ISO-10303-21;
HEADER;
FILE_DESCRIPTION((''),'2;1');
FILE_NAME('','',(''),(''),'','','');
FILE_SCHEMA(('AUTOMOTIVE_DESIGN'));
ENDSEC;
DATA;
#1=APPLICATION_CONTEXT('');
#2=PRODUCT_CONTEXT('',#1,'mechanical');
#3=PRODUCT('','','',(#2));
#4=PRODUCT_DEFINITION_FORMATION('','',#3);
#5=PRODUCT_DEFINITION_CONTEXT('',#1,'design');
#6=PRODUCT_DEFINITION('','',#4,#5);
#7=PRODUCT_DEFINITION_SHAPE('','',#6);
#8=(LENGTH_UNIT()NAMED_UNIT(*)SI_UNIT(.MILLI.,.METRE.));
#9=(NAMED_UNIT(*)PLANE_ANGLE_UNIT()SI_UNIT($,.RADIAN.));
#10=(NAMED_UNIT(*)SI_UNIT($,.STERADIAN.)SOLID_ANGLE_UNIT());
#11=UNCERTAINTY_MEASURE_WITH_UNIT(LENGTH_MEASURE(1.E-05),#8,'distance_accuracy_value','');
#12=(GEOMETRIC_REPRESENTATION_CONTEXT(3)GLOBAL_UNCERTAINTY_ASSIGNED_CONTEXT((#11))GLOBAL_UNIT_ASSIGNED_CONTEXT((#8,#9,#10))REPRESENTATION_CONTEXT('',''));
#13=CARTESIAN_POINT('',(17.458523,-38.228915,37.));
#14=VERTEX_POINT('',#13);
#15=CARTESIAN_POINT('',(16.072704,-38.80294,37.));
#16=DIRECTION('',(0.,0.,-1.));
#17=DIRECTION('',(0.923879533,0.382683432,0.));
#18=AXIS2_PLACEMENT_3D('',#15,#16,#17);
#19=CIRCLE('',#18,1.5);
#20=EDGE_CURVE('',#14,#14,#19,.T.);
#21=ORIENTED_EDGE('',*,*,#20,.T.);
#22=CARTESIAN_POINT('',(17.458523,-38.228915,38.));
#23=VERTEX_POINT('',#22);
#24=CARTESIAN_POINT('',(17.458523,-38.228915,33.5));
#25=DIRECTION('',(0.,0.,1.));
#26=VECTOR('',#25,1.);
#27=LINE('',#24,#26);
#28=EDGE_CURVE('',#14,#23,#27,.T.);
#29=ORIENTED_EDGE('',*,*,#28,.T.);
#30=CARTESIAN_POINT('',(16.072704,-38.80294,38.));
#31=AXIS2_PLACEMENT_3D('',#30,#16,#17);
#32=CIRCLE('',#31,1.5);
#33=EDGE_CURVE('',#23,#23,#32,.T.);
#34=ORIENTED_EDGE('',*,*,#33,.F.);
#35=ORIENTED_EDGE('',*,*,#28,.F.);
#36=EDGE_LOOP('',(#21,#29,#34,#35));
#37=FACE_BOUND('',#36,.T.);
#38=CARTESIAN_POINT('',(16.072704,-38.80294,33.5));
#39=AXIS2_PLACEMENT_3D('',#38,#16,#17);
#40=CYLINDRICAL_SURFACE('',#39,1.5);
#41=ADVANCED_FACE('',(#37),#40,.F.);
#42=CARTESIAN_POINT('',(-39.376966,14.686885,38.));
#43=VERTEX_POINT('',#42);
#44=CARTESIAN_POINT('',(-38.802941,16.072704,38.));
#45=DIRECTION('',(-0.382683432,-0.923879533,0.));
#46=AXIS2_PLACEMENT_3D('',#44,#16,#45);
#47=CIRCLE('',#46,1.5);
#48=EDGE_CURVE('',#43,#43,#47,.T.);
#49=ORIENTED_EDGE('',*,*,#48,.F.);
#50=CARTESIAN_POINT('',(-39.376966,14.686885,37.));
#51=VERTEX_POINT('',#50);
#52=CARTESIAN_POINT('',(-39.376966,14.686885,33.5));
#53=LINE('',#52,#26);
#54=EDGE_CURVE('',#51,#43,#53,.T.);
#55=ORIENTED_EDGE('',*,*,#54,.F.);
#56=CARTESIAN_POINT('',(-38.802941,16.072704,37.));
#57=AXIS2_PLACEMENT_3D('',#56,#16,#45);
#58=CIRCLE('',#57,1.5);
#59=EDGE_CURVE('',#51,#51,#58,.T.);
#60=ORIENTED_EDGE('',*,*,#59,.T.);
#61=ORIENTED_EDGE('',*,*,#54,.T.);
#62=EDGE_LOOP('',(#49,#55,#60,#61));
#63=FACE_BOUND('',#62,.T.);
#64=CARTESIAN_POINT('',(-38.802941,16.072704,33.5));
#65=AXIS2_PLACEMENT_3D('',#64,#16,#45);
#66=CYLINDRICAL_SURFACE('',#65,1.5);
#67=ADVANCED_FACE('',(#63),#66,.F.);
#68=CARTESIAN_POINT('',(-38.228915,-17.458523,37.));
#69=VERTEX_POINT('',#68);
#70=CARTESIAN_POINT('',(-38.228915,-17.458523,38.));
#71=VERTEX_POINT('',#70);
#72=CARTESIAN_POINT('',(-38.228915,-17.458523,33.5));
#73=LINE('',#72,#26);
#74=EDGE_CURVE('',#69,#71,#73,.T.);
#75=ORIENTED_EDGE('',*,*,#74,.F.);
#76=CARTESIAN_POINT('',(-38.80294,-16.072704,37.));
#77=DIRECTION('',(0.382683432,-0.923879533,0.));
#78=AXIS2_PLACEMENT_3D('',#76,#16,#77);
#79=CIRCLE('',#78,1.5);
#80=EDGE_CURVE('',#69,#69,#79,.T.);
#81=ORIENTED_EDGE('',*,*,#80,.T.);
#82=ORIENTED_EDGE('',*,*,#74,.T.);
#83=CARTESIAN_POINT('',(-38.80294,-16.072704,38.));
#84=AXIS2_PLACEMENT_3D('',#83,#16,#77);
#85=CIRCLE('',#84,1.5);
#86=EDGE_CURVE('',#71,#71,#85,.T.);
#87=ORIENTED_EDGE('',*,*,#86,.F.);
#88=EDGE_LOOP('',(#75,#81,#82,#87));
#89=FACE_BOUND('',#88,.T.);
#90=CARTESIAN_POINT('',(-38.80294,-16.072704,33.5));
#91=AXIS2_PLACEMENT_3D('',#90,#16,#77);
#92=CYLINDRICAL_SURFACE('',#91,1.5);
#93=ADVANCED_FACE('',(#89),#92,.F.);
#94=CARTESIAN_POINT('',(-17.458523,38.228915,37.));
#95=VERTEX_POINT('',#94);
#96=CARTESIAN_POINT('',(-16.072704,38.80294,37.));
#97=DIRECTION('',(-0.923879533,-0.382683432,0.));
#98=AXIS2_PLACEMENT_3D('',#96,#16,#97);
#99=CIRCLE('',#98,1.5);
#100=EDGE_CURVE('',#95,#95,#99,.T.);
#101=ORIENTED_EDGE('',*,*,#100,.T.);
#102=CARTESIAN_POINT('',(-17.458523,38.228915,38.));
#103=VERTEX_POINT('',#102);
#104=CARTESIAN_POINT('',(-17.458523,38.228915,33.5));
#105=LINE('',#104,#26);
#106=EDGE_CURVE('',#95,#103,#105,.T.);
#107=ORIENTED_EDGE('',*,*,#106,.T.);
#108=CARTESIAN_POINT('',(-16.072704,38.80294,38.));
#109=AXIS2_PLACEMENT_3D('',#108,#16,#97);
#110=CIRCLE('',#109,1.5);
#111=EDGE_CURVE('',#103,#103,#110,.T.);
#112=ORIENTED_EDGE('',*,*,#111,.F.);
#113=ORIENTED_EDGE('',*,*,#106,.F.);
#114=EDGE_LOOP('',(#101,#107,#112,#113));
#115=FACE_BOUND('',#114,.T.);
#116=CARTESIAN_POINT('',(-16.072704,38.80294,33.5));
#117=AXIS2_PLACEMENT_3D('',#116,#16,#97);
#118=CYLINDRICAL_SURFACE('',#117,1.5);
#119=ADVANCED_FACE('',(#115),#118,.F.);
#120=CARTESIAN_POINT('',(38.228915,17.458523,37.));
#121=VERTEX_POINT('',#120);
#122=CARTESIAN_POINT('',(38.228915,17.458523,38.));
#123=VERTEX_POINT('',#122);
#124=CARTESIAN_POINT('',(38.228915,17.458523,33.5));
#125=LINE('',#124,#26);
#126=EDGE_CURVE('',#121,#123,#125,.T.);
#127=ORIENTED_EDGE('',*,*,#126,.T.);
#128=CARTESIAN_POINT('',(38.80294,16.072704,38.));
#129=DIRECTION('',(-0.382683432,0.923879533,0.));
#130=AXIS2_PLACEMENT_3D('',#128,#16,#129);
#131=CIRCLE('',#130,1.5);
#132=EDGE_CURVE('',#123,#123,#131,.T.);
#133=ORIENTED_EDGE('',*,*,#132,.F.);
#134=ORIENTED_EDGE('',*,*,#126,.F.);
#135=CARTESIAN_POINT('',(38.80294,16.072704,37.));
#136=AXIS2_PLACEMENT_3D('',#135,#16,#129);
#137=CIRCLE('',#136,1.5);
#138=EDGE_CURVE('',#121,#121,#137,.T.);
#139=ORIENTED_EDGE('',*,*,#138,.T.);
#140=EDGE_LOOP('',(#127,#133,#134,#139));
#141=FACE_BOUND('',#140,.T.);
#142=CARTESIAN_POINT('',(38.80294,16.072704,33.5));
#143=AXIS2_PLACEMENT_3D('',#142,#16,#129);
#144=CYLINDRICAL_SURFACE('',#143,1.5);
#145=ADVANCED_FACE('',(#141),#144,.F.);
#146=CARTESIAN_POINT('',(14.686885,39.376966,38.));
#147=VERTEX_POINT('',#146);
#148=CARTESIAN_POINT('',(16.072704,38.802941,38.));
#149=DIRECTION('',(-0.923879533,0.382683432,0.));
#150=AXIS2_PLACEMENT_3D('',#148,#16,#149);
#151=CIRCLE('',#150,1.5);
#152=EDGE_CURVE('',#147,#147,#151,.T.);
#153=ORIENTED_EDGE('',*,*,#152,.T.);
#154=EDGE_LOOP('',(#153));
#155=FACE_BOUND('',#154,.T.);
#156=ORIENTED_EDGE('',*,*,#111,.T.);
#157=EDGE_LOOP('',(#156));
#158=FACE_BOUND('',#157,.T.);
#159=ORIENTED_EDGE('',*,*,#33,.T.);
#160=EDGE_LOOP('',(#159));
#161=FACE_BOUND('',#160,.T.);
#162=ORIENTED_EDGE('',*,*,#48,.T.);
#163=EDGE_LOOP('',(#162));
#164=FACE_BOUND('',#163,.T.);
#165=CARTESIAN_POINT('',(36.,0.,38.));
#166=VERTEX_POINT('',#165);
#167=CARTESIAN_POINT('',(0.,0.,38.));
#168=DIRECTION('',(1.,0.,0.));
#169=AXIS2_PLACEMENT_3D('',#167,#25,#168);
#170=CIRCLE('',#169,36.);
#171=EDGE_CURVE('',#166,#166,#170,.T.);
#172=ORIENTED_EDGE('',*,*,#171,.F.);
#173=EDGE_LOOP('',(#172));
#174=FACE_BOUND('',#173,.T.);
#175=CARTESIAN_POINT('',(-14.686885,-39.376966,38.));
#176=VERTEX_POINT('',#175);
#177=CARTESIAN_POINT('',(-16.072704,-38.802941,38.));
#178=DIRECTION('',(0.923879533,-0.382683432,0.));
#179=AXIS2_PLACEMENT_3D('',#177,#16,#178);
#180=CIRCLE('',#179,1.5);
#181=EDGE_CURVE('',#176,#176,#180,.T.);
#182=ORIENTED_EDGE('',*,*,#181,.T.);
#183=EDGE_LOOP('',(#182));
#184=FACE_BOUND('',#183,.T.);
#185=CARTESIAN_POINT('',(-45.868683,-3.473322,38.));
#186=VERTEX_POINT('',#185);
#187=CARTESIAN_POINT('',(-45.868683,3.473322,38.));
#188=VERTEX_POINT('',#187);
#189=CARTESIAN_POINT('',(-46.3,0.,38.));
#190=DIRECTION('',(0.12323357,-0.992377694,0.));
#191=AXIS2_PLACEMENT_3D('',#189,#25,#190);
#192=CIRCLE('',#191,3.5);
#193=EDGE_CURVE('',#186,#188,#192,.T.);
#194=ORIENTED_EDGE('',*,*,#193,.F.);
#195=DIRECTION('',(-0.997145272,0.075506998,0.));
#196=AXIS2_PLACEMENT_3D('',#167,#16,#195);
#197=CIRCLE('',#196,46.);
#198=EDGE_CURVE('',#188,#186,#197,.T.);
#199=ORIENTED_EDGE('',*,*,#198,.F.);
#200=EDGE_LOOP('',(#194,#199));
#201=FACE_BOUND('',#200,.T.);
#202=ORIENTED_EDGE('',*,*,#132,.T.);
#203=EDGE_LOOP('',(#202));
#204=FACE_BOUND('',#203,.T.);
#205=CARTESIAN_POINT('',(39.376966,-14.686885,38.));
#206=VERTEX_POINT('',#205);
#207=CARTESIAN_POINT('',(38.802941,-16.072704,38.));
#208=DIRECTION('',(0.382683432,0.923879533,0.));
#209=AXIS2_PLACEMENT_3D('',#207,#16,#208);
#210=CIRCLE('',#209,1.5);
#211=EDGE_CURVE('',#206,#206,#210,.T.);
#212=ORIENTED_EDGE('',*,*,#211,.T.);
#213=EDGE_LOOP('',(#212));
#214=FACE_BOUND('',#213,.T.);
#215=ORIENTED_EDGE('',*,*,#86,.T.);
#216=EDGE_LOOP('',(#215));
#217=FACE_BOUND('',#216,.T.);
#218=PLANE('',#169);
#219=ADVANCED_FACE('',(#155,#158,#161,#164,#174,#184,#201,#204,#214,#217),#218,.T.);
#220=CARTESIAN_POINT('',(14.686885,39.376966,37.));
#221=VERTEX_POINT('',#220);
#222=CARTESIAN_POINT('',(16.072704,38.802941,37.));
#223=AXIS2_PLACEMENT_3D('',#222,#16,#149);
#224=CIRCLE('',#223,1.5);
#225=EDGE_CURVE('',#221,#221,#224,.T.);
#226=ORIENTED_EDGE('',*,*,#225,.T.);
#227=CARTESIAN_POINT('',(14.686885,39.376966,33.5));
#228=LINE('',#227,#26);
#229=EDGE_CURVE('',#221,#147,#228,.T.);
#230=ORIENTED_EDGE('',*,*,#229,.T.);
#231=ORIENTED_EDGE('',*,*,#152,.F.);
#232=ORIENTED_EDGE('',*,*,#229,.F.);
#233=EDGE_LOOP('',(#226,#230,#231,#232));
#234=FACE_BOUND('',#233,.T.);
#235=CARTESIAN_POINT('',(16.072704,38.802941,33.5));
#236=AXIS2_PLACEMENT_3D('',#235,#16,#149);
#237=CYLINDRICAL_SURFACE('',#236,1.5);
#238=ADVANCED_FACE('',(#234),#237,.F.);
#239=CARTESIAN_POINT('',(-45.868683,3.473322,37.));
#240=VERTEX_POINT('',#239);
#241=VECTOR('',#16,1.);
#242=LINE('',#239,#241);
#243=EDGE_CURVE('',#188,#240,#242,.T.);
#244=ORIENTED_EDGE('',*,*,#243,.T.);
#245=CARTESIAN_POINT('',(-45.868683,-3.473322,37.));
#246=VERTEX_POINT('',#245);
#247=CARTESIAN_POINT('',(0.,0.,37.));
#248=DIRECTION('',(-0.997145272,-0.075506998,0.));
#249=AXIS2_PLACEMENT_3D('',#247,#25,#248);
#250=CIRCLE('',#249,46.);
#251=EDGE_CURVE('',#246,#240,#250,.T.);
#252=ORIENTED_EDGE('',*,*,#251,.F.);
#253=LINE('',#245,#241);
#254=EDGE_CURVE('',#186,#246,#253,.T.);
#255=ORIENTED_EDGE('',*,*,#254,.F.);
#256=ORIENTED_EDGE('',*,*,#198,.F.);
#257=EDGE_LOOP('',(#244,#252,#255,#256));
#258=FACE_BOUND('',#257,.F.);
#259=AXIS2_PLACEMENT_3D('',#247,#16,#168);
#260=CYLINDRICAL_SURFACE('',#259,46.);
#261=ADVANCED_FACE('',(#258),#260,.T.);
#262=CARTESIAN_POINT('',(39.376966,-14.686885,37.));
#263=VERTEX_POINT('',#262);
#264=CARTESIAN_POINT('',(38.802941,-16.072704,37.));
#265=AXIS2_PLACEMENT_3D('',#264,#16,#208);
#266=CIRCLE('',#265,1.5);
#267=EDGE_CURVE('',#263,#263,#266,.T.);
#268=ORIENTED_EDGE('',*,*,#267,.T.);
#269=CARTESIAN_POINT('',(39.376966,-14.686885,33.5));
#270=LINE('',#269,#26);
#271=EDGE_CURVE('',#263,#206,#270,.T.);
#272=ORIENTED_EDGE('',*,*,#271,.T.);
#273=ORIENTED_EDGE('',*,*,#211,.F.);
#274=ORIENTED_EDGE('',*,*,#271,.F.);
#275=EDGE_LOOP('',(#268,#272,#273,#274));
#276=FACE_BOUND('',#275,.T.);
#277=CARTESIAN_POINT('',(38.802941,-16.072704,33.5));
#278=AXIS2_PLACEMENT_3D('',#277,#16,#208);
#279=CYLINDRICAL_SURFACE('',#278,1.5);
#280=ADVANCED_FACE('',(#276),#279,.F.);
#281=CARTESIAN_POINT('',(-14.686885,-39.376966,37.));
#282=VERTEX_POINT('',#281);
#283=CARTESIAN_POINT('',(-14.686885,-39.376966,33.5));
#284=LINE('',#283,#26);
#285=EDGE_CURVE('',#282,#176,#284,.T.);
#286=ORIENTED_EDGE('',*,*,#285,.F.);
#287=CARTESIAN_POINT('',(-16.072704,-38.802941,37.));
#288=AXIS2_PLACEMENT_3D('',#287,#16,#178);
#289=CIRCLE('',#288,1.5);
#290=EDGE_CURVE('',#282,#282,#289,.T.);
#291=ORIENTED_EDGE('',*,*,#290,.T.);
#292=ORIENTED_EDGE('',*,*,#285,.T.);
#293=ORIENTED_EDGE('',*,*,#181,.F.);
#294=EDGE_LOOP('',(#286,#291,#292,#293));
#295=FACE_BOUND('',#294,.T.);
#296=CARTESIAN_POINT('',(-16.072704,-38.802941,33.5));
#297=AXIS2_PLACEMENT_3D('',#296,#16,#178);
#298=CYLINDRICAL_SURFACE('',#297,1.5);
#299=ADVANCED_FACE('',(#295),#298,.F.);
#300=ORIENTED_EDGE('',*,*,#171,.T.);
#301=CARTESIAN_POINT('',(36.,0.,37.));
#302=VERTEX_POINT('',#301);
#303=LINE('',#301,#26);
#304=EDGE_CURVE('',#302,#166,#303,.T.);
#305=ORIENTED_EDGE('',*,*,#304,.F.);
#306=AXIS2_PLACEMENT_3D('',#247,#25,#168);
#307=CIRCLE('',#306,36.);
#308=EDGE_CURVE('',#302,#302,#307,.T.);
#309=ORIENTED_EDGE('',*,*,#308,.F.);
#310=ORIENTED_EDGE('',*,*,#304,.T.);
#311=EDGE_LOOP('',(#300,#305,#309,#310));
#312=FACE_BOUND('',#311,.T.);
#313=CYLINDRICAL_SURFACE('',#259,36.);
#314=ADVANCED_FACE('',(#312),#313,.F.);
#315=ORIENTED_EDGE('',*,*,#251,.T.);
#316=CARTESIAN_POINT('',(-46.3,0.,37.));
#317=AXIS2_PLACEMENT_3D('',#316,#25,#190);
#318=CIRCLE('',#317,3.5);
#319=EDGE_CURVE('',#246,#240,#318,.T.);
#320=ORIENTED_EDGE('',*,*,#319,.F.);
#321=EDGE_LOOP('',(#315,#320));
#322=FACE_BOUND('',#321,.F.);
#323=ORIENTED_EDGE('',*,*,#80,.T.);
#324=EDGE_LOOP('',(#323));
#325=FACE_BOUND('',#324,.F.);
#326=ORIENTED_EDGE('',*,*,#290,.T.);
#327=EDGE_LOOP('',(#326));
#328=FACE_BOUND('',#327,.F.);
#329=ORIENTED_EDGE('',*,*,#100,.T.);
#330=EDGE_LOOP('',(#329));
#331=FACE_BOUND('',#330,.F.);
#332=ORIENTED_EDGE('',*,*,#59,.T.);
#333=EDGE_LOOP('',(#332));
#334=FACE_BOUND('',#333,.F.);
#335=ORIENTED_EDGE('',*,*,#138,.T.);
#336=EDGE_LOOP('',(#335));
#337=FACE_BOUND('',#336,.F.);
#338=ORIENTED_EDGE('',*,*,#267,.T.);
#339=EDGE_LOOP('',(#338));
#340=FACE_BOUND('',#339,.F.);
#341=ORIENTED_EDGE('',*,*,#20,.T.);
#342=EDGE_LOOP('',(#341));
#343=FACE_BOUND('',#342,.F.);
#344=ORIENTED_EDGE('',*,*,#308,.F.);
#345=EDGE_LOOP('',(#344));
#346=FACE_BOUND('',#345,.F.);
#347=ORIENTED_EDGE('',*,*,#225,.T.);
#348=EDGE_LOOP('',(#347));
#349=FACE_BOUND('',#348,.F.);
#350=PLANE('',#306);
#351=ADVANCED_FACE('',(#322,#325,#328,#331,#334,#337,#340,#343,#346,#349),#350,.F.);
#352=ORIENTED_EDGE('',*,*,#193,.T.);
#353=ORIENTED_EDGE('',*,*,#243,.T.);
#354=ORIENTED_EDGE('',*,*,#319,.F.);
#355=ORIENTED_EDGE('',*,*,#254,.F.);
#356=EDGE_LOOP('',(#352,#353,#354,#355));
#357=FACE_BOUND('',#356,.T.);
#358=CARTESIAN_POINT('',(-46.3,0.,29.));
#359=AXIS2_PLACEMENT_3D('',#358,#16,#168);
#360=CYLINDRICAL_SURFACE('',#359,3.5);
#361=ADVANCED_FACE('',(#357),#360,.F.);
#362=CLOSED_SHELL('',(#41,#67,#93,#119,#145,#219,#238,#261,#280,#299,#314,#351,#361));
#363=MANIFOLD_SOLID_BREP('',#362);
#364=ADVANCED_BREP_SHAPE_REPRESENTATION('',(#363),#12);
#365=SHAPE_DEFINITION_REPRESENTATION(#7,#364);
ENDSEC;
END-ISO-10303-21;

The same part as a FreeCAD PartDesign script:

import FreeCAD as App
import Part
import Sketcher

doc = App.newDocument("Part")
body = doc.addObject("PartDesign::Body", "Body")

sketch1 = doc.addObject("Sketcher::SketchObject", "Sketch")
body.addObject(sketch1)
sketch1.AttachmentSupport = (doc.XY_Plane, [""])
sketch1.MapMode = "FlatFace"
sketch1.addGeometry([
    Part.LineSegment(App.Vector(0, 8, 0), App.Vector(0, 0, 0)),
    Part.LineSegment(App.Vector(0, 0, 0), App.Vector(6, 0, 0)),
    Part.LineSegment(App.Vector(6, 0, 0), App.Vector(6, 8, 0)),
    Part.LineSegment(App.Vector(6, 8, 0), App.Vector(0, 8, 0)),
], False)
sketch1.addConstraint([
    Sketcher.Constraint("Coincident", 0, 2, 1, 1),
    Sketcher.Constraint("Coincident", 1, 2, 2, 1),
    Sketcher.Constraint("Coincident", 2, 2, 3, 1),
    Sketcher.Constraint("Coincident", 3, 2, 0, 1),
    Sketcher.Constraint("Vertical", 0),
    Sketcher.Constraint("Horizontal", 1),
    Sketcher.Constraint("Vertical", 2),
    Sketcher.Constraint("Horizontal", 3),
    Sketcher.Constraint("Coincident", 0, 2, -1, 1),
    Sketcher.Constraint("DistanceX", 1, 1, 1, 2, 6.0),
    Sketcher.Constraint("DistanceY", 0, 2, 0, 1, 8.0),
])
pad1 = doc.addObject("PartDesign::Pad", "Pad")
body.addObject(pad1)
pad1.Profile = sketch1
pad1.Length = 2
body2 = doc.addObject("PartDesign::Body", "Body001")
doc.recompute()

body.Placement = App.Placement(App.Vector(30.405592, -34.648232, 33), App.Rotation(App.Vector(0, 0, 1), 45))
boolean = doc.addObject("PartDesign::Boolean", "Boolean")
body2.addObject(boolean)
boolean.Type = "Fuse"
boolean.addObjects([body])
body3 = doc.addObject("PartDesign::Body", "Body002")

sketch2 = doc.addObject("Sketcher::SketchObject", "Sketch001")
body3.addObject(sketch2)
sketch2.AttachmentSupport = (doc.getObject("XY_Plane002"), [""])
sketch2.MapMode = "FlatFace"
sketch2.AttachmentOffset = App.Placement(App.Vector(0, 0, 33), App.Rotation())
sketch2.addGeometry([
    Part.LineSegment(App.Vector(38, -3, 0), App.Vector(46, -3, 0)),
    Part.LineSegment(App.Vector(46, -3, 0), App.Vector(46, 3, 0)),
    Part.LineSegment(App.Vector(46, 3, 0), App.Vector(38, 3, 0)),
    Part.LineSegment(App.Vector(38, 3, 0), App.Vector(38, -3, 0)),
], False)
sketch2.addConstraint([
    Sketcher.Constraint("Coincident", 0, 2, 1, 1),
    Sketcher.Constraint("Coincident", 1, 2, 2, 1),
    Sketcher.Constraint("Coincident", 2, 2, 3, 1),
    Sketcher.Constraint("Coincident", 3, 2, 0, 1),
    Sketcher.Constraint("Horizontal", 0),
    Sketcher.Constraint("Vertical", 1),
    Sketcher.Constraint("Horizontal", 2),
    Sketcher.Constraint("Vertical", 3),
    Sketcher.Constraint("DistanceX", 0, 1, 0, 2, 8.0),
    Sketcher.Constraint("DistanceY", 1, 1, 1, 2, 6.0),
    Sketcher.Constraint("DistanceX", -1, 1, 0, 2, 46.0),
    Sketcher.Constraint("DistanceY", 0, 2, -1, 1, 3.0),
])
pad2 = doc.addObject("PartDesign::Pad", "Pad001")
body3.addObject(pad2)
pad2.Profile = sketch2
pad2.Length = 2
body4 = doc.addObject("PartDesign::Body", "Body003")

sketch3 = doc.addObject("Sketcher::SketchObject", "Sketch002")
body4.addObject(sketch3)
sketch3.AttachmentSupport = (doc.getObject("XY_Plane003"), [""])
sketch3.MapMode = "FlatFace"
sketch3.AttachmentOffset = App.Placement(App.Vector(0, 0, 33), App.Rotation())
sketch3.addGeometry([
    Part.LineSegment(App.Vector(-3, -38, 0), App.Vector(-3, -46, 0)),
    Part.LineSegment(App.Vector(-3, -46, 0), App.Vector(3, -46, 0)),
    Part.LineSegment(App.Vector(3, -46, 0), App.Vector(3, -38, 0)),
    Part.LineSegment(App.Vector(3, -38, 0), App.Vector(-3, -38, 0)),
], False)
sketch3.addConstraint([
    Sketcher.Constraint("Coincident", 0, 2, 1, 1),
    Sketcher.Constraint("Coincident", 1, 2, 2, 1),
    Sketcher.Constraint("Coincident", 2, 2, 3, 1),
    Sketcher.Constraint("Coincident", 3, 2, 0, 1),
    Sketcher.Constraint("Vertical", 0),
    Sketcher.Constraint("Horizontal", 1),
    Sketcher.Constraint("Vertical", 2),
    Sketcher.Constraint("Horizontal", 3),
    Sketcher.Constraint("DistanceX", 1, 1, 1, 2, 6.0),
    Sketcher.Constraint("DistanceY", 0, 2, 0, 1, 8.0),
    Sketcher.Constraint("DistanceX", 0, 2, -1, 1, 3.0),
    Sketcher.Constraint("DistanceY", 0, 2, -1, 1, 46.0),
])
pad3 = doc.addObject("PartDesign::Pad", "Pad002")
body4.addObject(pad3)
pad3.Profile = sketch3
pad3.Length = 2
body5 = doc.addObject("PartDesign::Body", "Body004")

sketch4 = doc.addObject("Sketcher::SketchObject", "Sketch003")
body5.addObject(sketch4)
sketch4.AttachmentSupport = (doc.getObject("XY_Plane004"), [""])
sketch4.MapMode = "FlatFace"
sketch4.addGeometry([
    Part.LineSegment(App.Vector(0, 8, 0), App.Vector(0, 0, 0)),
    Part.LineSegment(App.Vector(0, 0, 0), App.Vector(6, 0, 0)),
    Part.LineSegment(App.Vector(6, 0, 0), App.Vector(6, 8, 0)),
    Part.LineSegment(App.Vector(6, 8, 0), App.Vector(0, 8, 0)),
], False)
sketch4.addConstraint([
    Sketcher.Constraint("Coincident", 0, 2, 1, 1),
    Sketcher.Constraint("Coincident", 1, 2, 2, 1),
    Sketcher.Constraint("Coincident", 2, 2, 3, 1),
    Sketcher.Constraint("Coincident", 3, 2, 0, 1),
    Sketcher.Constraint("Vertical", 0),
    Sketcher.Constraint("Horizontal", 1),
    Sketcher.Constraint("Vertical", 2),
    Sketcher.Constraint("Horizontal", 3),
    Sketcher.Constraint("Coincident", 0, 2, -1, 1),
    Sketcher.Constraint("DistanceX", 1, 1, 1, 2, 6.0),
    Sketcher.Constraint("DistanceY", 0, 2, 0, 1, 8.0),
])
pad4 = doc.addObject("PartDesign::Pad", "Pad003")
body5.addObject(pad4)
pad4.Profile = sketch4
pad4.Length = 2
body6 = doc.addObject("PartDesign::Body", "Body005")
doc.recompute()

body5.Placement = App.Placement(App.Vector(34.648232, 30.405592, 33), App.Rotation(App.Vector(0, 0, 1), 135))
boolean2 = doc.addObject("PartDesign::Boolean", "Boolean001")
body6.addObject(boolean2)
boolean2.Type = "Fuse"
boolean2.addObjects([body5])
body7 = doc.addObject("PartDesign::Body", "Body006")

sketch5 = doc.addObject("Sketcher::SketchObject", "Sketch004")
body7.addObject(sketch5)
sketch5.AttachmentSupport = (doc.getObject("XY_Plane006"), [""])
sketch5.MapMode = "FlatFace"
sketch5.AttachmentOffset = App.Placement(App.Vector(0, 0, 33), App.Rotation())
sketch5.addGeometry([
    Part.LineSegment(App.Vector(3, 38, 0), App.Vector(3, 46, 0)),
    Part.LineSegment(App.Vector(3, 46, 0), App.Vector(-3, 46, 0)),
    Part.LineSegment(App.Vector(-3, 46, 0), App.Vector(-3, 38, 0)),
    Part.LineSegment(App.Vector(-3, 38, 0), App.Vector(3, 38, 0)),
], False)
sketch5.addConstraint([
    Sketcher.Constraint("Coincident", 0, 2, 1, 1),
    Sketcher.Constraint("Coincident", 1, 2, 2, 1),
    Sketcher.Constraint("Coincident", 2, 2, 3, 1),
    Sketcher.Constraint("Coincident", 3, 2, 0, 1),
    Sketcher.Constraint("Vertical", 0),
    Sketcher.Constraint("Horizontal", 1),
    Sketcher.Constraint("Vertical", 2),
    Sketcher.Constraint("Horizontal", 3),
    Sketcher.Constraint("DistanceX", 1, 2, 1, 1, 6.0),
    Sketcher.Constraint("DistanceY", 0, 1, 0, 2, 8.0),
    Sketcher.Constraint("DistanceX", -1, 1, 0, 2, 3.0),
    Sketcher.Constraint("DistanceY", -1, 1, 0, 2, 46.0),
])
pad5 = doc.addObject("PartDesign::Pad", "Pad004")
body7.addObject(pad5)
pad5.Profile = sketch5
pad5.Length = 2
body8 = doc.addObject("PartDesign::Body", "Body007")

sketch6 = doc.addObject("Sketcher::SketchObject", "Sketch005")
body8.addObject(sketch6)
sketch6.AttachmentSupport = (doc.getObject("XY_Plane007"), [""])
sketch6.MapMode = "FlatFace"
sketch6.addGeometry([
    Part.LineSegment(App.Vector(0, 8, 0), App.Vector(0, 0, 0)),
    Part.LineSegment(App.Vector(0, 0, 0), App.Vector(6, 0, 0)),
    Part.LineSegment(App.Vector(6, 0, 0), App.Vector(6, 8, 0)),
    Part.LineSegment(App.Vector(6, 8, 0), App.Vector(0, 8, 0)),
], False)
sketch6.addConstraint([
    Sketcher.Constraint("Coincident", 0, 2, 1, 1),
    Sketcher.Constraint("Coincident", 1, 2, 2, 1),
    Sketcher.Constraint("Coincident", 2, 2, 3, 1),
    Sketcher.Constraint("Coincident", 3, 2, 0, 1),
    Sketcher.Constraint("Vertical", 0),
    Sketcher.Constraint("Horizontal", 1),
    Sketcher.Constraint("Vertical", 2),
    Sketcher.Constraint("Horizontal", 3),
    Sketcher.Constraint("Coincident", 0, 2, -1, 1),
    Sketcher.Constraint("DistanceX", 1, 1, 1, 2, 6.0),
    Sketcher.Constraint("DistanceY", 0, 2, 0, 1, 8.0),
])
pad6 = doc.addObject("PartDesign::Pad", "Pad005")
body8.addObject(pad6)
pad6.Profile = sketch6
pad6.Length = 2
body9 = doc.addObject("PartDesign::Body", "Body008")
doc.recompute()

body8.Placement = App.Placement(App.Vector(-30.405592, 34.648232, 33), App.Rotation(App.Vector(0, 0, 1), 225))
boolean3 = doc.addObject("PartDesign::Boolean", "Boolean002")
body9.addObject(boolean3)
boolean3.Type = "Fuse"
boolean3.addObjects([body8])
body10 = doc.addObject("PartDesign::Body", "Body009")

sketch7 = doc.addObject("Sketcher::SketchObject", "Sketch006")
body10.addObject(sketch7)
sketch7.AttachmentSupport = (doc.getObject("XY_Plane009"), [""])
sketch7.MapMode = "FlatFace"
sketch7.AttachmentOffset = App.Placement(App.Vector(0, 0, 33), App.Rotation())
sketch7.addGeometry([
    Part.LineSegment(App.Vector(-38, 3, 0), App.Vector(-46, 3, 0)),
    Part.LineSegment(App.Vector(-46, 3, 0), App.Vector(-46, -3, 0)),
    Part.LineSegment(App.Vector(-46, -3, 0), App.Vector(-38, -3, 0)),
    Part.LineSegment(App.Vector(-38, -3, 0), App.Vector(-38, 3, 0)),
], False)
sketch7.addConstraint([
    Sketcher.Constraint("Coincident", 0, 2, 1, 1),
    Sketcher.Constraint("Coincident", 1, 2, 2, 1),
    Sketcher.Constraint("Coincident", 2, 2, 3, 1),
    Sketcher.Constraint("Coincident", 3, 2, 0, 1),
    Sketcher.Constraint("Horizontal", 0),
    Sketcher.Constraint("Vertical", 1),
    Sketcher.Constraint("Horizontal", 2),
    Sketcher.Constraint("Vertical", 3),
    Sketcher.Constraint("DistanceX", 0, 2, 0, 1, 8.0),
    Sketcher.Constraint("DistanceY", 1, 2, 1, 1, 6.0),
    Sketcher.Constraint("DistanceX", 0, 2, -1, 1, 46.0),
    Sketcher.Constraint("DistanceY", -1, 1, 0, 2, 3.0),
])
pad7 = doc.addObject("PartDesign::Pad", "Pad006")
body10.addObject(pad7)
pad7.Profile = sketch7
pad7.Length = 2
body11 = doc.addObject("PartDesign::Body", "Body010")

sketch8 = doc.addObject("Sketcher::SketchObject", "Sketch007")
body11.addObject(sketch8)
sketch8.AttachmentSupport = (doc.getObject("XY_Plane010"), [""])
sketch8.MapMode = "FlatFace"
sketch8.addGeometry([
    Part.LineSegment(App.Vector(0, 8, 0), App.Vector(0, 0, 0)),
    Part.LineSegment(App.Vector(0, 0, 0), App.Vector(6, 0, 0)),
    Part.LineSegment(App.Vector(6, 0, 0), App.Vector(6, 8, 0)),
    Part.LineSegment(App.Vector(6, 8, 0), App.Vector(0, 8, 0)),
], False)
sketch8.addConstraint([
    Sketcher.Constraint("Coincident", 0, 2, 1, 1),
    Sketcher.Constraint("Coincident", 1, 2, 2, 1),
    Sketcher.Constraint("Coincident", 2, 2, 3, 1),
    Sketcher.Constraint("Coincident", 3, 2, 0, 1),
    Sketcher.Constraint("Vertical", 0),
    Sketcher.Constraint("Horizontal", 1),
    Sketcher.Constraint("Vertical", 2),
    Sketcher.Constraint("Horizontal", 3),
    Sketcher.Constraint("Coincident", 0, 2, -1, 1),
    Sketcher.Constraint("DistanceX", 1, 1, 1, 2, 6.0),
    Sketcher.Constraint("DistanceY", 0, 2, 0, 1, 8.0),
])
pad8 = doc.addObject("PartDesign::Pad", "Pad007")
body11.addObject(pad8)
pad8.Profile = sketch8
pad8.Length = 2
body12 = doc.addObject("PartDesign::Body", "Body011")
body12.AllowCompound = True
doc.recompute()

body11.Placement = App.Placement(App.Vector(-34.648232, -30.405592, 33), App.Rotation(App.Vector(0, 0, -1), 45))
boolean4 = doc.addObject("PartDesign::Boolean", "Boolean003")
body12.addObject(boolean4)
boolean4.Type = "Fuse"
boolean4.addObjects([body11])
doc.recompute()

boolean5 = doc.addObject("PartDesign::Boolean", "Boolean004")
body12.addObject(boolean5)
boolean5.Type = "Fuse"
boolean5.addObjects([body2])
doc.recompute()

boolean6 = doc.addObject("PartDesign::Boolean", "Boolean005")
body12.addObject(boolean6)
boolean6.Type = "Fuse"
boolean6.addObjects([body3])
doc.recompute()

boolean7 = doc.addObject("PartDesign::Boolean", "Boolean006")
body12.addObject(boolean7)
boolean7.Type = "Fuse"
boolean7.addObjects([body4])
doc.recompute()

boolean8 = doc.addObject("PartDesign::Boolean", "Boolean007")
body12.addObject(boolean8)
boolean8.Type = "Fuse"
boolean8.addObjects([body6])
doc.recompute()

boolean9 = doc.addObject("PartDesign::Boolean", "Boolean008")
body12.addObject(boolean9)
boolean9.Type = "Fuse"
boolean9.addObjects([body7])
doc.recompute()

boolean10 = doc.addObject("PartDesign::Boolean", "Boolean009")
body12.addObject(boolean10)
boolean10.Type = "Fuse"
boolean10.addObjects([body9])
doc.recompute()

boolean11 = doc.addObject("PartDesign::Boolean", "Boolean010")
body12.addObject(boolean11)
boolean11.Type = "Fuse"
boolean11.addObjects([body10])
body13 = doc.addObject("PartDesign::Body", "Body012")
body13.AllowCompound = True
doc.recompute()

body12.Placement = App.Placement(App.Vector(0, 0, 0), App.Rotation(App.Vector(0, 0, 1), 22.5))
boolean12 = doc.addObject("PartDesign::Boolean", "Boolean011")
body13.addObject(boolean12)
boolean12.Type = "Fuse"
boolean12.addObjects([body12])
body14 = doc.addObject("PartDesign::Body", "Body013")

sketch9 = doc.addObject("Sketcher::SketchObject", "Sketch008")
body14.addObject(sketch9)
sketch9.AttachmentSupport = (doc.getObject("XY_Plane013"), [""])
sketch9.MapMode = "FlatFace"
sketch9.addGeometry(Part.Circle(App.Vector(0, 0, 0), App.Vector(0, 0, 1), 1.5), False)
sketch9.addConstraint([
    Sketcher.Constraint("Coincident", 0, 3, -1, 1),
    Sketcher.Constraint("Diameter", 0, 3.0),
])
pad9 = doc.addObject("PartDesign::Pad", "Pad008")
body14.addObject(pad9)
pad9.Profile = sketch9
pad9.Length = 12
body15 = doc.addObject("PartDesign::Body", "Body014")
doc.recompute()

body14.Placement = App.Placement(App.Vector(29.698485, -29.698485, 33.5), App.Rotation(App.Vector(0, 0, 1), 45))
boolean13 = doc.addObject("PartDesign::Boolean", "Boolean012")
body15.addObject(boolean13)
boolean13.Type = "Fuse"
boolean13.addObjects([body14])
body16 = doc.addObject("PartDesign::Body", "Body015")

sketch10 = doc.addObject("Sketcher::SketchObject", "Sketch009")
body16.addObject(sketch10)
sketch10.AttachmentSupport = (doc.getObject("XY_Plane015"), [""])
sketch10.MapMode = "FlatFace"
sketch10.AttachmentOffset = App.Placement(App.Vector(0, 0, 33.5), App.Rotation())
sketch10.addGeometry(Part.Circle(App.Vector(42, 0, 0), App.Vector(0, 0, 1), 1.5), False)
sketch10.addConstraint([
    Sketcher.Constraint("PointOnObject", 0, 3, -1),
    Sketcher.Constraint("Diameter", 0, 3.0),
    Sketcher.Constraint("DistanceX", -1, 1, 0, 3, 42.0),
])
pad10 = doc.addObject("PartDesign::Pad", "Pad009")
body16.addObject(pad10)
pad10.Profile = sketch10
pad10.Length = 12
body17 = doc.addObject("PartDesign::Body", "Body016")

sketch11 = doc.addObject("Sketcher::SketchObject", "Sketch010")
body17.addObject(sketch11)
sketch11.AttachmentSupport = (doc.getObject("XY_Plane016"), [""])
sketch11.MapMode = "FlatFace"
sketch11.addGeometry(Part.Circle(App.Vector(0, 0, 0), App.Vector(0, 0, 1), 1.5), False)
sketch11.addConstraint([
    Sketcher.Constraint("Coincident", 0, 3, -1, 1),
    Sketcher.Constraint("Diameter", 0, 3.0),
])
pad11 = doc.addObject("PartDesign::Pad", "Pad010")
body17.addObject(pad11)
pad11.Profile = sketch11
pad11.Length = 12
body18 = doc.addObject("PartDesign::Body", "Body017")
doc.recompute()

body17.Placement = App.Placement(App.Vector(29.698485, 29.698485, 33.5), App.Rotation(App.Vector(0, 0, 1), 135))
boolean14 = doc.addObject("PartDesign::Boolean", "Boolean013")
body18.addObject(boolean14)
boolean14.Type = "Fuse"
boolean14.addObjects([body17])
body19 = doc.addObject("PartDesign::Body", "Body018")

sketch12 = doc.addObject("Sketcher::SketchObject", "Sketch011")
body19.addObject(sketch12)
sketch12.AttachmentSupport = (doc.getObject("XY_Plane018"), [""])
sketch12.MapMode = "FlatFace"
sketch12.AttachmentOffset = App.Placement(App.Vector(0, 0, 33.5), App.Rotation())
sketch12.addGeometry(Part.Circle(App.Vector(0, 42, 0), App.Vector(0, 0, 1), 1.5), False)
sketch12.addConstraint([
    Sketcher.Constraint("PointOnObject", 0, 3, -2),
    Sketcher.Constraint("Diameter", 0, 3.0),
    Sketcher.Constraint("DistanceY", -1, 1, 0, 3, 42.0),
])
pad12 = doc.addObject("PartDesign::Pad", "Pad011")
body19.addObject(pad12)
pad12.Profile = sketch12
pad12.Length = 12
body20 = doc.addObject("PartDesign::Body", "Body019")

sketch13 = doc.addObject("Sketcher::SketchObject", "Sketch012")
body20.addObject(sketch13)
sketch13.AttachmentSupport = (doc.getObject("XY_Plane019"), [""])
sketch13.MapMode = "FlatFace"
sketch13.addGeometry(Part.Circle(App.Vector(0, 0, 0), App.Vector(0, 0, 1), 1.5), False)
sketch13.addConstraint([
    Sketcher.Constraint("Coincident", 0, 3, -1, 1),
    Sketcher.Constraint("Diameter", 0, 3.0),
])
pad13 = doc.addObject("PartDesign::Pad", "Pad012")
body20.addObject(pad13)
pad13.Profile = sketch13
pad13.Length = 12
body21 = doc.addObject("PartDesign::Body", "Body020")
doc.recompute()

body20.Placement = App.Placement(App.Vector(-29.698485, 29.698485, 33.5), App.Rotation(App.Vector(0, 0, 1), 225))
boolean15 = doc.addObject("PartDesign::Boolean", "Boolean014")
body21.addObject(boolean15)
boolean15.Type = "Fuse"
boolean15.addObjects([body20])
body22 = doc.addObject("PartDesign::Body", "Body021")

sketch14 = doc.addObject("Sketcher::SketchObject", "Sketch013")
body22.addObject(sketch14)
sketch14.AttachmentSupport = (doc.getObject("XY_Plane021"), [""])
sketch14.MapMode = "FlatFace"
sketch14.AttachmentOffset = App.Placement(App.Vector(0, 0, 33.5), App.Rotation())
sketch14.addGeometry(Part.Circle(App.Vector(-42, 0, 0), App.Vector(0, 0, 1), 1.5), False)
sketch14.addConstraint([
    Sketcher.Constraint("PointOnObject", 0, 3, -1),
    Sketcher.Constraint("Diameter", 0, 3.0),
    Sketcher.Constraint("DistanceX", 0, 3, -1, 1, 42.0),
])
pad14 = doc.addObject("PartDesign::Pad", "Pad013")
body22.addObject(pad14)
pad14.Profile = sketch14
pad14.Length = 12
body23 = doc.addObject("PartDesign::Body", "Body022")

sketch15 = doc.addObject("Sketcher::SketchObject", "Sketch014")
body23.addObject(sketch15)
sketch15.AttachmentSupport = (doc.getObject("XY_Plane022"), [""])
sketch15.MapMode = "FlatFace"
sketch15.addGeometry(Part.Circle(App.Vector(0, 0, 0), App.Vector(0, 0, 1), 1.5), False)
sketch15.addConstraint([
    Sketcher.Constraint("Coincident", 0, 3, -1, 1),
    Sketcher.Constraint("Diameter", 0, 3.0),
])
pad15 = doc.addObject("PartDesign::Pad", "Pad014")
body23.addObject(pad15)
pad15.Profile = sketch15
pad15.Length = 12
body24 = doc.addObject("PartDesign::Body", "Body023")
doc.recompute()

body23.Placement = App.Placement(App.Vector(-29.698485, -29.698485, 33.5), App.Rotation(App.Vector(0, 0, -1), 45))
boolean16 = doc.addObject("PartDesign::Boolean", "Boolean015")
body24.addObject(boolean16)
boolean16.Type = "Fuse"
boolean16.addObjects([body23])
body25 = doc.addObject("PartDesign::Body", "Body024")
body25.AllowCompound = True

sketch16 = doc.addObject("Sketcher::SketchObject", "Sketch015")
body25.addObject(sketch16)
sketch16.AttachmentSupport = (doc.getObject("XY_Plane024"), [""])
sketch16.MapMode = "FlatFace"
sketch16.AttachmentOffset = App.Placement(App.Vector(0, 0, 33.5), App.Rotation())
sketch16.addGeometry(Part.Circle(App.Vector(0, -42, 0), App.Vector(0, 0, 1), 1.5), False)
sketch16.addConstraint([
    Sketcher.Constraint("PointOnObject", 0, 3, -2),
    Sketcher.Constraint("Diameter", 0, 3.0),
    Sketcher.Constraint("DistanceY", 0, 3, -1, 1, 42.0),
])
pad16 = doc.addObject("PartDesign::Pad", "Pad015")
body25.addObject(pad16)
pad16.Profile = sketch16
pad16.Length = 12
doc.recompute()

boolean17 = doc.addObject("PartDesign::Boolean", "Boolean016")
body25.addObject(boolean17)
boolean17.Type = "Fuse"
boolean17.addObjects([body15])
doc.recompute()

boolean18 = doc.addObject("PartDesign::Boolean", "Boolean017")
body25.addObject(boolean18)
boolean18.Type = "Fuse"
boolean18.addObjects([body16])
doc.recompute()

boolean19 = doc.addObject("PartDesign::Boolean", "Boolean018")
body25.addObject(boolean19)
boolean19.Type = "Fuse"
boolean19.addObjects([body18])
doc.recompute()

boolean20 = doc.addObject("PartDesign::Boolean", "Boolean019")
body25.addObject(boolean20)
boolean20.Type = "Fuse"
boolean20.addObjects([body19])
doc.recompute()

boolean21 = doc.addObject("PartDesign::Boolean", "Boolean020")
body25.addObject(boolean21)
boolean21.Type = "Fuse"
boolean21.addObjects([body21])
doc.recompute()

boolean22 = doc.addObject("PartDesign::Boolean", "Boolean021")
body25.addObject(boolean22)
boolean22.Type = "Fuse"
boolean22.addObjects([body22])
doc.recompute()

boolean23 = doc.addObject("PartDesign::Boolean", "Boolean022")
body25.addObject(boolean23)
boolean23.Type = "Fuse"
boolean23.addObjects([body24])
body26 = doc.addObject("PartDesign::Body", "Body025")
body26.AllowCompound = True
doc.recompute()

body25.Placement = App.Placement(App.Vector(0, 0, 0), App.Rotation(App.Vector(0, 0, 1), 22.5))
boolean24 = doc.addObject("PartDesign::Boolean", "Boolean023")
body26.addObject(boolean24)
boolean24.Type = "Fuse"
boolean24.addObjects([body25])
body27 = doc.addObject("PartDesign::Body", "Body026")

sketch17 = doc.addObject("Sketcher::SketchObject", "Sketch016")
body27.addObject(sketch17)
sketch17.AttachmentSupport = (doc.getObject("XY_Plane026"), [""])
sketch17.MapMode = "FlatFace"
sketch17.AttachmentOffset = App.Placement(App.Vector(0, 0, 29), App.Rotation())
sketch17.addGeometry(Part.Circle(App.Vector(-46.3, 0, 0), App.Vector(0, 0, 1), 3.5), False)
sketch17.addConstraint([
    Sketcher.Constraint("PointOnObject", 0, 3, -1),
    Sketcher.Constraint("Diameter", 0, 7.0),
    Sketcher.Constraint("DistanceX", 0, 3, -1, 1, 46.3),
])
pad17 = doc.addObject("PartDesign::Pad", "Pad016")
body27.addObject(pad17)
pad17.Profile = sketch17
pad17.Length = 20
body28 = doc.addObject("PartDesign::Body", "Body027")

sketch18 = doc.addObject("Sketcher::SketchObject", "Sketch017")
body28.addObject(sketch18)
sketch18.AttachmentSupport = (doc.getObject("XY_Plane027"), [""])
sketch18.MapMode = "FlatFace"
sketch18.AttachmentOffset = App.Placement(App.Vector(0, 0, 37), App.Rotation())
sketch18.addGeometry([
    Part.Circle(App.Vector(0, 0, 0), App.Vector(0, 0, 1), 46),
    Part.Circle(App.Vector(0, 0, 0), App.Vector(0, 0, 1), 36),
], False)
sketch18.addConstraint([
    Sketcher.Constraint("Coincident", 0, 3, -1, 1),
    Sketcher.Constraint("Coincident", 1, 3, -1, 1),
    Sketcher.Constraint("Diameter", 0, 92.0),
    Sketcher.Constraint("Diameter", 1, 72.0),
])
pad18 = doc.addObject("PartDesign::Pad", "Pad017")
body28.addObject(pad18)
pad18.Profile = sketch18
pad18.Length = 1
doc.recompute()

boolean25 = doc.addObject("PartDesign::Boolean", "Boolean024")
body28.addObject(boolean25)
boolean25.Type = "Cut"
boolean25.addObjects([body27])
doc.recompute()

boolean26 = doc.addObject("PartDesign::Boolean", "Boolean025")
body28.addObject(boolean26)
boolean26.Type = "Cut"
boolean26.addObjects([body26])
doc.recompute()

boolean27 = doc.addObject("PartDesign::Boolean", "Boolean026")
body28.addObject(boolean27)
boolean27.Type = "Cut"
boolean27.addObjects([body13])

doc.recompute()
